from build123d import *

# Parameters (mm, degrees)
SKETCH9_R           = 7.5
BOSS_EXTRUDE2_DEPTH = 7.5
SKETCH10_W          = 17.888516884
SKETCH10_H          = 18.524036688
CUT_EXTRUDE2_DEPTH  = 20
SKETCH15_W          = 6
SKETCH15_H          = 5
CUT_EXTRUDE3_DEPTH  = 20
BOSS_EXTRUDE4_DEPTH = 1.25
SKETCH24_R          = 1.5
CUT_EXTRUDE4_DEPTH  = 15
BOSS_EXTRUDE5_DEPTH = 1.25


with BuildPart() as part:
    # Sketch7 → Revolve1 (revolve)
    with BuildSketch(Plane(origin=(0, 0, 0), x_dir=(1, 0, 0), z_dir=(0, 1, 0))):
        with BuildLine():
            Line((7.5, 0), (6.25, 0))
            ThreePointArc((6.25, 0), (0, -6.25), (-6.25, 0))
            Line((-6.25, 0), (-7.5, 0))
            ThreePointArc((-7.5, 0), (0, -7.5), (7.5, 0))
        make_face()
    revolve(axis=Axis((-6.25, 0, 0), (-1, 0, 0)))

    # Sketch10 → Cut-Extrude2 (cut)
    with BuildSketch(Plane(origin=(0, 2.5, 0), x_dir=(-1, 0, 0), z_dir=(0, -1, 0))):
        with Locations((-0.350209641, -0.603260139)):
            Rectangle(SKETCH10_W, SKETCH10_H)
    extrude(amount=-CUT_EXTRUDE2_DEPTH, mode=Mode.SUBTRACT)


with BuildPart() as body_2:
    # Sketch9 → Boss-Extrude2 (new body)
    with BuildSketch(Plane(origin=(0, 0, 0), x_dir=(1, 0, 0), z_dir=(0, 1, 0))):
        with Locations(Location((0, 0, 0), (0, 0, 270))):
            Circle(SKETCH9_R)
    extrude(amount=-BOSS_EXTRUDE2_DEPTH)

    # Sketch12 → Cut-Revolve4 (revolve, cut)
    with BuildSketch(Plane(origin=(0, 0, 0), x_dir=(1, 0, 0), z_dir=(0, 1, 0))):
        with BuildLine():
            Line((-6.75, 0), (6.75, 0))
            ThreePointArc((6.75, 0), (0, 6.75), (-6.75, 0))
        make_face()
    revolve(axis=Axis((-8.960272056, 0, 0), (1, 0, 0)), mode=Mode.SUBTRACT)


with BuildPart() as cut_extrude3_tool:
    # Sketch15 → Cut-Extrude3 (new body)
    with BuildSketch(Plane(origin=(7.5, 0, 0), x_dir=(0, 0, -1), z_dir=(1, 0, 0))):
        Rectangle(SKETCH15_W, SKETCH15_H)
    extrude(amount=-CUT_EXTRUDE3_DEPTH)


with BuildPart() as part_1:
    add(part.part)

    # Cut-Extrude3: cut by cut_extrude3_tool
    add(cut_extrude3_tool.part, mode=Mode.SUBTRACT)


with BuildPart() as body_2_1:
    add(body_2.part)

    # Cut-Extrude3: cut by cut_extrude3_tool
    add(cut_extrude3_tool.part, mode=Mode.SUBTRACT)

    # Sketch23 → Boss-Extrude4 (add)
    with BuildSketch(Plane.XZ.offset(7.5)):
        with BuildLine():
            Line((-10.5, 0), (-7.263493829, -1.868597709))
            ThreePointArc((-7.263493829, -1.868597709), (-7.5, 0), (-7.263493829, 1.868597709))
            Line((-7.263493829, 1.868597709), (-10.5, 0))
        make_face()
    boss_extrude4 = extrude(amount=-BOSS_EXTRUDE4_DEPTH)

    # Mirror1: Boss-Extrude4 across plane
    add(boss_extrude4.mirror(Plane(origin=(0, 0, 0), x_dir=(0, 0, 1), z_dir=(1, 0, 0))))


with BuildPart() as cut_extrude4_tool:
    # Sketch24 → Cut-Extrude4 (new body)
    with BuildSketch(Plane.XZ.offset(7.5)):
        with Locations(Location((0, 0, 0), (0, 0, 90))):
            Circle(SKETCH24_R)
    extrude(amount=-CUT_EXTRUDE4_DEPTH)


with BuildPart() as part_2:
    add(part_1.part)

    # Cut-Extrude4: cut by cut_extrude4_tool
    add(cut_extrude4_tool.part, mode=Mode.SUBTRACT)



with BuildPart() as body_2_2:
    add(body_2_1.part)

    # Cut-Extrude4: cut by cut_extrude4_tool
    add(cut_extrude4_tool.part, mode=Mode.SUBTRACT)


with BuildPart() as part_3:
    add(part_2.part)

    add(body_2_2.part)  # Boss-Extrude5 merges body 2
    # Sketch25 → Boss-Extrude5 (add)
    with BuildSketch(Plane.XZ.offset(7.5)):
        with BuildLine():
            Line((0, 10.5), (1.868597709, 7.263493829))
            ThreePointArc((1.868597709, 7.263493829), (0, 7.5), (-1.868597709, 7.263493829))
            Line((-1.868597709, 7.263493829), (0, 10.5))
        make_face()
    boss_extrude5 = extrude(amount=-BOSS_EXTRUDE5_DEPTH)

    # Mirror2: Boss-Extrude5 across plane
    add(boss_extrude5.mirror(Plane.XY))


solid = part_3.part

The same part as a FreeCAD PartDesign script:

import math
import FreeCAD as App
import Part
import Sketcher
from FreeCAD import Vector
Q = App.Units.Quantity


def add_polygon(sketch, points):
    """Adds a closed chain of lines whose ends are joined by coincident constraints."""
    first, n = sketch.GeometryCount, len(points)
    for a, b in zip(points, points[1:] + points[:1]):
        sketch.addGeometry(Part.LineSegment(App.Vector(*a, 0), App.Vector(*b, 0)), False)
    for i in range(n):
        sketch.addConstraint(Sketcher.Constraint("Coincident", first + i, 2, first + (i + 1) % n, 1))

doc = App.newDocument("Part")
body = doc.addObject("PartDesign::Body", "Body")

sketch1 = doc.addObject("Sketcher::SketchObject", "Sketch")
body.addObject(sketch1)
sketch1.AttachmentSupport = (doc.XZ_Plane, [""])
sketch1.MapMode = "FlatFace"
sketch1.addGeometry([
    Part.LineSegment(Vector(7.5, 0, 0), Vector(6.2, 0, 0)),
    Part.ArcOfCircle(Part.Circle(Vector(0, 0, 0), Vector(0, 0, 1), 6.2), math.radians(0), math.radians(180)),
    Part.LineSegment(Vector(-6.2, 0, 0), Vector(-7.5, 0, 0)),
    Part.ArcOfCircle(Part.Circle(Vector(0, 0, 0), Vector(0, 0, 1), 7.5), math.radians(0), math.radians(180)),
], False)
sketch1.addConstraint([
    Sketcher.Constraint("Coincident", 0, 2, 1, 1),
    Sketcher.Constraint("Coincident", 1, 2, 2, 1),
    Sketcher.Constraint("Coincident", 2, 2, 3, 2),
    Sketcher.Constraint("Coincident", 3, 1, 0, 1),
    Sketcher.Constraint("Horizontal", 0),
    Sketcher.Constraint("Horizontal", 2),
    Sketcher.Constraint("Coincident", 1, 3, -1, 1),
    Sketcher.Constraint("Coincident", 3, 3, -1, 1),
    Sketcher.Constraint("PointOnObject", 0, 2, -1),
    Sketcher.Constraint("PointOnObject", 1, 2, -1),
    Sketcher.Constraint("Radius", 3, Q("7.5 mm")),
    Sketcher.Constraint("Radius", 1, Q("6.25 mm")),
])
revolution = doc.addObject("PartDesign::Revolution", "Revolution")
body.addObject(revolution)
revolution.Profile = sketch1
revolution.ReferenceAxis = (sketch1, ["H_Axis"])
revolution.Angle = 360

sketch2 = doc.addObject("Sketcher::SketchObject", "Sketch001")
body.addObject(sketch2)
sketch2.AttachmentSupport = (doc.XZ_Plane, [""])
sketch2.MapMode = "FlatFace"
sketch2.AttachmentOffset = App.Placement(Vector(0, 0, -2.5), App.Rotation())
add_polygon(sketch2, [(9, -9), (9, 10), (-9, 10), (-9, -9)])
sketch2.addConstraint([
    Sketcher.Constraint("Vertical", 0),
    Sketcher.Constraint("Horizontal", 1),
    Sketcher.Constraint("Vertical", 2),
    Sketcher.Constraint("Horizontal", 3),
    Sketcher.Constraint("DistanceX", 1, 2, 1, 1, Q("17.888517 mm")),
    Sketcher.Constraint("DistanceY", 0, 1, 0, 2, Q("18.524037 mm")),
    Sketcher.Constraint("DistanceX", -1, 1, 0, 2, Q("9.294468 mm")),
    Sketcher.Constraint("DistanceY", -1, 1, 0, 2, Q("9.865278 mm")),
])
pocket1 = doc.addObject("PartDesign::Pocket", "Pocket")
body.addObject(pocket1)
pocket1.Profile = sketch2
pocket1.Length = 20
body2 = doc.addObject("PartDesign::Body", "Body001")

sketch3 = doc.addObject("Sketcher::SketchObject", "Sketch002")
body2.addObject(sketch3)
sketch3.AttachmentSupport = (doc.getObject("XZ_Plane001"), [""])
sketch3.MapMode = "FlatFace"
sketch3.addGeometry(Part.Circle(Vector(0, 0, 0), Vector(0, 0, 1), 8), False)
sketch3.addConstraint([
    Sketcher.Constraint("Coincident", 0, 3, -1, 1),
    Sketcher.Constraint("Diameter", 0, Q("15 mm")),
])
pad1 = doc.addObject("PartDesign::Pad", "Pad")
body2.addObject(pad1)
pad1.Profile = sketch3
pad1.Length = 7.5

sketch4 = doc.addObject("Sketcher::SketchObject", "Sketch003")
body2.addObject(sketch4)
sketch4.AttachmentSupport = (doc.getObject("XZ_Plane001"), [""])
sketch4.MapMode = "FlatFace"
sketch4.addGeometry([
    Part.LineSegment(Vector(-7, 0, 0), Vector(7, 0, 0)),
    Part.ArcOfCircle(Part.Circle(Vector(0, 0, 0), Vector(0, 0, 1), 7), math.radians(180), math.radians(360)),
], False)
sketch4.addConstraint([
    Sketcher.Constraint("Coincident", 0, 1, 1, 1),
    Sketcher.Constraint("Coincident", 1, 2, 0, 2),
    Sketcher.Constraint("Horizontal", 0),
    Sketcher.Constraint("Coincident", 1, 3, -1, 1),
    Sketcher.Constraint("PointOnObject", 0, 1, -1),
    Sketcher.Constraint("Radius", 1, Q("6.75 mm")),
])
groove = doc.addObject("PartDesign::Groove", "Groove")
body2.addObject(groove)
groove.Profile = sketch4
groove.ReferenceAxis = (sketch4, ["H_Axis"])
groove.Angle = 360
body3 = doc.addObject("PartDesign::Body", "Body002")

sketch5 = doc.addObject("Sketcher::SketchObject", "Sketch004")
body3.addObject(sketch5)
sketch5.AttachmentSupport = (doc.getObject("YZ_Plane002"), [""])
sketch5.MapMode = "FlatFace"
sketch5.AttachmentOffset = App.Placement(Vector(0, 0, 7.5), App.Rotation())
add_polygon(sketch5, [(2, 3), (-2, 3), (-2, -3), (2, -3)])
sketch5.addConstraint([
    Sketcher.Constraint("Horizontal", 0),
    Sketcher.Constraint("Vertical", 1),
    Sketcher.Constraint("Horizontal", 2),
    Sketcher.Constraint("Vertical", 3),
    Sketcher.Constraint("Symmetric", 0, 2, 2, 2, -1, 1),
    Sketcher.Constraint("DistanceX", 0, 2, 0, 1, Q("5 mm")),
    Sketcher.Constraint("DistanceY", 1, 2, 1, 1, Q("6 mm")),
])
pad2 = doc.addObject("PartDesign::Pad", "Pad001")
body3.addObject(pad2)
pad2.Profile = sketch5
pad2.Length = 20
pad2.Reversed = True
doc.recompute()

body4 = doc.addObject("PartDesign::Body", "Body003")
body4.BaseFeature = body3
boolean = doc.addObject("PartDesign::Boolean", "Boolean")
body.addObject(boolean)
boolean.Type = "Cut"
boolean.addObjects([body4])
doc.recompute()

boolean2 = doc.addObject("PartDesign::Boolean", "Boolean001")
body2.addObject(boolean2)
boolean2.Type = "Cut"
boolean2.addObjects([body3])

sketch6 = doc.addObject("Sketcher::SketchObject", "Sketch005")
body2.addObject(sketch6)
sketch6.AttachmentSupport = (doc.getObject("XZ_Plane001"), [""])
sketch6.MapMode = "FlatFace"
sketch6.AttachmentOffset = App.Placement(Vector(0, 0, 7.5), App.Rotation())
sketch6.addGeometry([
    Part.LineSegment(Vector(-10.5, 0, 0), Vector(-7.3, -1.9, 0)),
    Part.ArcOfCircle(Part.Circle(Vector(0, 0, 0), Vector(0, 0, 1), 7.5), math.radians(166), math.radians(194)),
    Part.LineSegment(Vector(-7.3, 1.9, 0), Vector(-10.5, 0, 0)),
], False)
sketch6.addConstraint([
    Sketcher.Constraint("Coincident", 0, 2, 1, 2),
    Sketcher.Constraint("Coincident", 1, 1, 2, 1),
    Sketcher.Constraint("Coincident", 2, 2, 0, 1),
    Sketcher.Constraint("Coincident", 1, 3, -1, 1),
    Sketcher.Constraint("PointOnObject", 2, 2, -1),
    Sketcher.Constraint("Vertical", 0, 2, 1, 1),
    Sketcher.Constraint("Radius", 1, Q("7.5 mm")),
    Sketcher.Constraint("Angle", 0, Q("-30 deg")),
    Sketcher.Constraint("DistanceX", 2, 2, -1, 1, Q("10.5 mm")),
])
pad3 = doc.addObject("PartDesign::Pad", "Pad002")
body2.addObject(pad3)
pad3.Profile = sketch6
pad3.Length = 1.25
pad3.Reversed = True
doc.recompute()

mirrored = doc.addObject("PartDesign::Mirrored", "Mirrored")
body2.addObject(mirrored)
mirrored.Originals = [pad3]
mirrored.MirrorPlane = (doc.getObject("YZ_Plane001"), [""])
body2.Tip = mirrored
body5 = doc.addObject("PartDesign::Body", "Body004")

sketch7 = doc.addObject("Sketcher::SketchObject", "Sketch006")
body5.addObject(sketch7)
sketch7.AttachmentSupport = (doc.getObject("XZ_Plane004"), [""])
sketch7.MapMode = "FlatFace"
sketch7.AttachmentOffset = App.Placement(Vector(0, 0, 7.5), App.Rotation())
sketch7.addGeometry(Part.Circle(Vector(0, 0, 0), Vector(0, 0, 1), 1.5), False)
sketch7.addConstraint([
    Sketcher.Constraint("Coincident", 0, 3, -1, 1),
    Sketcher.Constraint("Diameter", 0, Q("3 mm")),
])
pad4 = doc.addObject("PartDesign::Pad", "Pad003")
body5.addObject(pad4)
pad4.Profile = sketch7
pad4.Length = 15
pad4.Reversed = True
doc.recompute()

body6 = doc.addObject("PartDesign::Body", "Body005")
body6.BaseFeature = body5
boolean3 = doc.addObject("PartDesign::Boolean", "Boolean002")
body.addObject(boolean3)
boolean3.Type = "Cut"
boolean3.addObjects([body6])
doc.recompute()

boolean4 = doc.addObject("PartDesign::Boolean", "Boolean003")
body2.addObject(boolean4)
boolean4.Type = "Cut"
boolean4.addObjects([body5])
doc.recompute()

boolean5 = doc.addObject("PartDesign::Boolean", "Boolean004")
body.addObject(boolean5)
boolean5.Type = "Fuse"
boolean5.addObjects([body2])

sketch8 = doc.addObject("Sketcher::SketchObject", "Sketch007")
body.addObject(sketch8)
sketch8.AttachmentSupport = (doc.XZ_Plane, [""])
sketch8.MapMode = "FlatFace"
sketch8.AttachmentOffset = App.Placement(Vector(0, 0, 7.5), App.Rotation())
sketch8.addGeometry([
    Part.LineSegment(Vector(1.9, 7.3, 0), Vector(0, 10.5, 0)),
    Part.LineSegment(Vector(0, 10.5, 0), Vector(-1.9, 7.3, 0)),
    Part.ArcOfCircle(Part.Circle(Vector(0, 0, 0), Vector(0, 0, 1), 7.5), math.radians(76), math.radians(104)),
], False)
sketch8.addConstraint([
    Sketcher.Constraint("Coincident", 0, 2, 1, 1),
    Sketcher.Constraint("Coincident", 1, 2, 2, 2),
    Sketcher.Constraint("Coincident", 2, 1, 0, 1),
    Sketcher.Constraint("Coincident", 2, 3, -1, 1),
    Sketcher.Constraint("PointOnObject", 0, 2, -2),
    Sketcher.Constraint("Horizontal", 1, 2, 2, 1),
    Sketcher.Constraint("Radius", 2, Q("7.5 mm")),
    Sketcher.Constraint("Angle", 0, Q("120 deg")),
    Sketcher.Constraint("DistanceY", -1, 1, 0, 2, Q("10.5 mm")),
])
pad5 = doc.addObject("PartDesign::Pad", "Pad004")
body.addObject(pad5)
pad5.Profile = sketch8
pad5.Length = 1.25
pad5.Reversed = True
doc.recompute()

mirrored2 = doc.addObject("PartDesign::Mirrored", "Mirrored001")
body.addObject(mirrored2)
mirrored2.Originals = [pad5]
mirrored2.MirrorPlane = (doc.XY_Plane, [""])
body.Tip = mirrored2

doc.recompute()
